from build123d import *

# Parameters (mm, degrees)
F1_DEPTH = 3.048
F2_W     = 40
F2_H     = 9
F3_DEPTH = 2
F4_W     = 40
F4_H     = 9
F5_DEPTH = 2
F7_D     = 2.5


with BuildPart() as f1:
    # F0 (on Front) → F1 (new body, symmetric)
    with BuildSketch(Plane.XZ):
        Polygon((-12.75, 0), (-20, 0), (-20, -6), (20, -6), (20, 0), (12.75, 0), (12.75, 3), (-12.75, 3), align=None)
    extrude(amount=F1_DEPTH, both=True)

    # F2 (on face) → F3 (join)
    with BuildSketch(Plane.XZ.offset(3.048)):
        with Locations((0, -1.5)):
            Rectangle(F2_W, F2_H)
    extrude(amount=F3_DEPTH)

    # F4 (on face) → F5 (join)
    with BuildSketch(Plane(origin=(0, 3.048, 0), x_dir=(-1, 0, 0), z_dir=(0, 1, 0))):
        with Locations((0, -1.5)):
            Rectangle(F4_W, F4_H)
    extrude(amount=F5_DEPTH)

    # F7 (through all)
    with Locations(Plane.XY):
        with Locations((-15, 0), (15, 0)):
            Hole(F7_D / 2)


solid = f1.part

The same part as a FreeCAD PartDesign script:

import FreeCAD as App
import Part
import Sketcher
Q = App.Units.Quantity


def add_polygon(sketch, points):
    """Adds a closed chain of lines whose ends are joined by coincident constraints."""
    first, n = sketch.GeometryCount, len(points)
    for a, b in zip(points, points[1:] + points[:1]):
        sketch.addGeometry(Part.LineSegment(App.Vector(*a, 0), App.Vector(*b, 0)), False)
    for i in range(n):
        sketch.addConstraint(Sketcher.Constraint("Coincident", first + i, 2, first + (i + 1) % n, 1))

doc = App.newDocument("Part")
params = doc.addObject("Spreadsheet::Sheet", "Params")
for row, (alias, value) in enumerate([
    ("sketch1_width", "40 mm"),
    ("sketch1_height", "6 mm"),
    ("sketch1_height2", "3 mm"),
    ("sketch1_width2", "25.5 mm"),
    ("pad1_length", "6.096 mm"),
    ("sketch2_width", "40 mm"),
    ("sketch2_height", "9 mm"),
    ("pad2_length", "2 mm"),
    ("sketch3_width", "40 mm"),
    ("sketch3_height", "9 mm"),
    ("pad3_length", "2 mm"),
    ("sketch4_diameter", "2.5 mm"),
    ("hole_diameter", "2.5 mm"),
], start=1):
    params.set(f"A{row}", alias)
    params.set(f"B{row}", "=" + value)
    params.setAlias(f"B{row}", alias)

body = doc.addObject("PartDesign::Body", "Body")

# Sketch on XZ plane
sketch1 = doc.addObject("Sketcher::SketchObject", "Sketch")
body.addObject(sketch1)
sketch1.AttachmentSupport = (doc.XZ_Plane, [""])
sketch1.MapMode = "FlatFace"
add_polygon(sketch1, [(-12.8, 0), (-20, 0), (-20, -6), (20, -6), (20, 0), (12.8, 0), (12.8, 3), (-12.8, 3)])  # lines 0-7
sketch1.addConstraint([
    Sketcher.Constraint("Horizontal", 0),
    Sketcher.Constraint("Vertical", 1),
    Sketcher.Constraint("Horizontal", 2),
    Sketcher.Constraint("Vertical", 3),
    Sketcher.Constraint("Horizontal", 4),
    Sketcher.Constraint("Vertical", 5),
    Sketcher.Constraint("Horizontal", 6),
    Sketcher.Constraint("Vertical", 7),
    Sketcher.Constraint("Symmetric", 0, 2, 3, 2, -1, 1),
    Sketcher.Constraint("Symmetric", 4, 2, 7, 2, -2),
    Sketcher.Constraint("DistanceX", 2, 1, 2, 2, Q("40 mm")),
    Sketcher.Constraint("DistanceY", 1, 2, 1, 1, Q("6 mm")),
    Sketcher.Constraint("DistanceY", 5, 1, 5, 2, Q("3 mm")),
    Sketcher.Constraint("DistanceX", 6, 2, 6, 1, Q("25.5 mm")),
])
sketch1.setExpression("Constraints[18]", "Params.sketch1_width")
sketch1.setExpression("Constraints[19]", "Params.sketch1_height")
sketch1.setExpression("Constraints[20]", "Params.sketch1_height2")
sketch1.setExpression("Constraints[21]", "Params.sketch1_width2")
pad1 = doc.addObject("PartDesign::Pad", "Pad")
body.addObject(pad1)
pad1.Profile = sketch1
pad1.setExpression("Length", "Params.pad1_length")
pad1.Midplane = True

# Sketch on XZ plane
sketch2 = doc.addObject("Sketcher::SketchObject", "Sketch001")
body.addObject(sketch2)
sketch2.AttachmentSupport = (doc.XZ_Plane, [""])
sketch2.MapMode = "FlatFace"
sketch2.AttachmentOffset = App.Placement(App.Vector(0, 0, 3.048), App.Rotation())
add_polygon(sketch2, [(-20, 3), (-20, -6), (20, -6), (20, 3)])  # lines 0-3
sketch2.addConstraint([
    Sketcher.Constraint("Vertical", 0),
    Sketcher.Constraint("Horizontal", 1),
    Sketcher.Constraint("Vertical", 2),
    Sketcher.Constraint("Horizontal", 3),
    Sketcher.Constraint("DistanceX", 1, 1, 1, 2, Q("40 mm")),
    Sketcher.Constraint("DistanceY", 0, 2, 0, 1, Q("9 mm")),
    Sketcher.Constraint("DistanceX", 0, 2, -1, 1, Q("20 mm")),
    Sketcher.Constraint("DistanceY", 0, 2, -1, 1, Q("6 mm")),
])
sketch2.setExpression("Constraints[8]", "Params.sketch2_width")
sketch2.setExpression("Constraints[9]", "Params.sketch2_height")
pad2 = doc.addObject("PartDesign::Pad", "Pad001")
body.addObject(pad2)
pad2.Profile = sketch2
pad2.setExpression("Length", "Params.pad2_length")

# Sketch on XZ plane
sketch3 = doc.addObject("Sketcher::SketchObject", "Sketch002")
body.addObject(sketch3)
sketch3.AttachmentSupport = (doc.XZ_Plane, [""])
sketch3.MapMode = "FlatFace"
sketch3.AttachmentOffset = App.Placement(App.Vector(0, 0, -3.048), App.Rotation())
add_polygon(sketch3, [(20, 3), (20, -6), (-20, -6), (-20, 3)])  # lines 0-3
sketch3.addConstraint([
    Sketcher.Constraint("Vertical", 0),
    Sketcher.Constraint("Horizontal", 1),
    Sketcher.Constraint("Vertical", 2),
    Sketcher.Constraint("Horizontal", 3),
    Sketcher.Constraint("DistanceX", 1, 2, 1, 1, Q("40 mm")),
    Sketcher.Constraint("DistanceY", 0, 2, 0, 1, Q("9 mm")),
    Sketcher.Constraint("DistanceX", -1, 1, 0, 2, Q("20 mm")),
    Sketcher.Constraint("DistanceY", 0, 2, -1, 1, Q("6 mm")),
])
sketch3.setExpression("Constraints[8]", "Params.sketch3_width")
sketch3.setExpression("Constraints[9]", "Params.sketch3_height")
pad3 = doc.addObject("PartDesign::Pad", "Pad002")
body.addObject(pad3)
pad3.Profile = sketch3
pad3.setExpression("Length", "Params.pad3_length")
pad3.Reversed = True

# Sketch on XY plane
sketch4 = doc.addObject("Sketcher::SketchObject", "Sketch003")
body.addObject(sketch4)
sketch4.AttachmentSupport = (doc.XY_Plane, [""])
sketch4.MapMode = "FlatFace"
sketch4.addGeometry([
    Part.Circle(App.Vector(-15, 0, 0), App.Vector(0, 0, 1), 1.2),
    Part.Circle(App.Vector(15, 0, 0), App.Vector(0, 0, 1), 1.2),
], False)
sketch4.addConstraint([
    Sketcher.Constraint("Equal", 0, 1),
    Sketcher.Constraint("Symmetric", 0, 3, 1, 3, -1, 1),
    Sketcher.Constraint("PointOnObject", 0, 3, -1),
    Sketcher.Constraint("Diameter", 0, Q("2.5 mm")),
    Sketcher.Constraint("DistanceX", 0, 3, -1, 1, Q("15 mm")),
])
sketch4.setExpression("Constraints[3]", "Params.sketch4_diameter")
doc.recompute()
hole = doc.addObject("PartDesign::Hole", "Hole")
body.addObject(hole)
hole.Profile = sketch4
hole.ThreadType = "None"
hole.setExpression("Diameter", "Params.hole_diameter")
hole.DepthType = "ThroughAll"

doc.recompute()
